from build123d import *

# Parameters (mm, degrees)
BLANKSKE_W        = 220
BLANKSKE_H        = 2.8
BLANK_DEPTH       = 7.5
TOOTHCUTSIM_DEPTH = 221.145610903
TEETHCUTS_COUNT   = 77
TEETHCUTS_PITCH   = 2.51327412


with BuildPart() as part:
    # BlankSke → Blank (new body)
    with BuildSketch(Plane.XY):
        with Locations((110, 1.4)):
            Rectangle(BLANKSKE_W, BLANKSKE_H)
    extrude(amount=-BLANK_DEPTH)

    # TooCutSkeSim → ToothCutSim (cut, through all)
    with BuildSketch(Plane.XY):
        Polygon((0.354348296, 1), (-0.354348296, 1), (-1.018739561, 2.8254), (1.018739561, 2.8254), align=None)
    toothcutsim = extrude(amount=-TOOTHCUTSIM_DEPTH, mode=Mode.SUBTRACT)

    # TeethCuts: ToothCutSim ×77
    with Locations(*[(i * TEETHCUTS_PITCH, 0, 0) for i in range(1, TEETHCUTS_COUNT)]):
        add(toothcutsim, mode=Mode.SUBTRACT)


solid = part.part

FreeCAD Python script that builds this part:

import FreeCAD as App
import Part
import Sketcher
Q = App.Units.Quantity

doc = App.newDocument("Part")
params = doc.addObject("Spreadsheet::Sheet", "Params")
for row, (alias, value) in enumerate([
    ("sketch1_width", "220 mm"),
    ("sketch1_height", "2.8 mm"),
    ("pad1_length", "7.5 mm"),
    ("linearpattern_pitch", "2.513274 mm"),
], start=1):
    params.set(f"A{row}", alias)
    params.set(f"B{row}", "=" + value)
    params.setAlias(f"B{row}", alias)

body = doc.addObject("PartDesign::Body", "Body")

sketch1 = body.newObject("Sketcher::SketchObject", "Sketch")
sketch1.AttachmentSupport = (doc.getObject("XY_Plane"), [""])
sketch1.MapMode = "FlatFace"
sketch1.addGeometry(Part.LineSegment(App.Vector(0, 2.8, 0), App.Vector(0, 0, 0)), False)
sketch1.addGeometry(Part.LineSegment(App.Vector(0, 0, 0), App.Vector(220, 0, 0)), False)
sketch1.addGeometry(Part.LineSegment(App.Vector(220, 0, 0), App.Vector(220, 2.8, 0)), False)
sketch1.addGeometry(Part.LineSegment(App.Vector(220, 2.8, 0), App.Vector(0, 2.8, 0)), False)
sketch1.addConstraint(Sketcher.Constraint("Coincident", 0, 2, 1, 1))
sketch1.addConstraint(Sketcher.Constraint("Coincident", 1, 2, 2, 1))
sketch1.addConstraint(Sketcher.Constraint("Coincident", 2, 2, 3, 1))
sketch1.addConstraint(Sketcher.Constraint("Coincident", 3, 2, 0, 1))
sketch1.addConstraint(Sketcher.Constraint("Vertical", 0))
sketch1.addConstraint(Sketcher.Constraint("Horizontal", 1))
sketch1.addConstraint(Sketcher.Constraint("Vertical", 2))
sketch1.addConstraint(Sketcher.Constraint("Horizontal", 3))
sketch1.addConstraint(Sketcher.Constraint("Coincident", 0, 2, -1, 1))
sketch1.addConstraint(Sketcher.Constraint("DistanceX", 1, 1, 1, 2, 220.0))
sketch1.addConstraint(Sketcher.Constraint("DistanceY", 0, 2, 0, 1, 2.8))
sketch1.setExpression("Constraints[9]", "Params.sketch1_width")
sketch1.setExpression("Constraints[10]", "Params.sketch1_height")
pad1 = body.newObject("PartDesign::Pad", "Pad")
pad1.Profile = sketch1
pad1.setExpression("Length", "Params.pad1_length")
pad1.Reversed = True

sketch2 = body.newObject("Sketcher::SketchObject", "Sketch001")
sketch2.AttachmentSupport = (doc.getObject("XY_Plane"), [""])
sketch2.MapMode = "FlatFace"
sketch2.addGeometry(Part.LineSegment(App.Vector(-0.4, 1, 0), App.Vector(0.4, 1, 0)), False)
sketch2.addGeometry(Part.LineSegment(App.Vector(0.4, 1, 0), App.Vector(1, 2.8, 0)), False)
sketch2.addGeometry(Part.LineSegment(App.Vector(1, 2.8, 0), App.Vector(-1, 2.8, 0)), False)
sketch2.addGeometry(Part.LineSegment(App.Vector(-1, 2.8, 0), App.Vector(-0.4, 1, 0)), False)
sketch2.addConstraint(Sketcher.Constraint("Coincident", 0, 2, 1, 1))
sketch2.addConstraint(Sketcher.Constraint("Coincident", 1, 2, 2, 1))
sketch2.addConstraint(Sketcher.Constraint("Coincident", 2, 2, 3, 1))
sketch2.addConstraint(Sketcher.Constraint("Coincident", 3, 2, 0, 1))
sketch2.addConstraint(Sketcher.Constraint("Horizontal", 0))
sketch2.addConstraint(Sketcher.Constraint("Horizontal", 2))
sketch2.addConstraint(Sketcher.Constraint("Equal", 1, 3))
sketch2.addConstraint(Sketcher.Constraint("Angle", 1, Q("70 deg")))
sketch2.addConstraint(Sketcher.Constraint("DistanceY", -1, 1, 0, 2, 1.0))
sketch2.addConstraint(Sketcher.Constraint("DistanceX", 2, 2, 2, 1, 2.037479))
sketch2.addConstraint(Sketcher.Constraint("DistanceY", -1, 1, 1, 2, 2.8254))
sketch2.addConstraint(Sketcher.Constraint("DistanceX", -1, 1, 0, 2, 0.354348))
pocket1 = body.newObject("PartDesign::Pocket", "Pocket")
pocket1.Profile = sketch2
pocket1.Type = "ThroughAll"
doc.recompute()

linearpattern = body.newObject("PartDesign::LinearPattern", "LinearPattern")
linearpattern.Originals = [pocket1]
linearpattern.Direction = (doc.getObject("X_Axis"), [""])
linearpattern.Mode = "offset"
linearpattern.setExpression("Offset", "Params.linearpattern_pitch")
linearpattern.Occurrences = 77
body.Tip = linearpattern

doc.recompute()
